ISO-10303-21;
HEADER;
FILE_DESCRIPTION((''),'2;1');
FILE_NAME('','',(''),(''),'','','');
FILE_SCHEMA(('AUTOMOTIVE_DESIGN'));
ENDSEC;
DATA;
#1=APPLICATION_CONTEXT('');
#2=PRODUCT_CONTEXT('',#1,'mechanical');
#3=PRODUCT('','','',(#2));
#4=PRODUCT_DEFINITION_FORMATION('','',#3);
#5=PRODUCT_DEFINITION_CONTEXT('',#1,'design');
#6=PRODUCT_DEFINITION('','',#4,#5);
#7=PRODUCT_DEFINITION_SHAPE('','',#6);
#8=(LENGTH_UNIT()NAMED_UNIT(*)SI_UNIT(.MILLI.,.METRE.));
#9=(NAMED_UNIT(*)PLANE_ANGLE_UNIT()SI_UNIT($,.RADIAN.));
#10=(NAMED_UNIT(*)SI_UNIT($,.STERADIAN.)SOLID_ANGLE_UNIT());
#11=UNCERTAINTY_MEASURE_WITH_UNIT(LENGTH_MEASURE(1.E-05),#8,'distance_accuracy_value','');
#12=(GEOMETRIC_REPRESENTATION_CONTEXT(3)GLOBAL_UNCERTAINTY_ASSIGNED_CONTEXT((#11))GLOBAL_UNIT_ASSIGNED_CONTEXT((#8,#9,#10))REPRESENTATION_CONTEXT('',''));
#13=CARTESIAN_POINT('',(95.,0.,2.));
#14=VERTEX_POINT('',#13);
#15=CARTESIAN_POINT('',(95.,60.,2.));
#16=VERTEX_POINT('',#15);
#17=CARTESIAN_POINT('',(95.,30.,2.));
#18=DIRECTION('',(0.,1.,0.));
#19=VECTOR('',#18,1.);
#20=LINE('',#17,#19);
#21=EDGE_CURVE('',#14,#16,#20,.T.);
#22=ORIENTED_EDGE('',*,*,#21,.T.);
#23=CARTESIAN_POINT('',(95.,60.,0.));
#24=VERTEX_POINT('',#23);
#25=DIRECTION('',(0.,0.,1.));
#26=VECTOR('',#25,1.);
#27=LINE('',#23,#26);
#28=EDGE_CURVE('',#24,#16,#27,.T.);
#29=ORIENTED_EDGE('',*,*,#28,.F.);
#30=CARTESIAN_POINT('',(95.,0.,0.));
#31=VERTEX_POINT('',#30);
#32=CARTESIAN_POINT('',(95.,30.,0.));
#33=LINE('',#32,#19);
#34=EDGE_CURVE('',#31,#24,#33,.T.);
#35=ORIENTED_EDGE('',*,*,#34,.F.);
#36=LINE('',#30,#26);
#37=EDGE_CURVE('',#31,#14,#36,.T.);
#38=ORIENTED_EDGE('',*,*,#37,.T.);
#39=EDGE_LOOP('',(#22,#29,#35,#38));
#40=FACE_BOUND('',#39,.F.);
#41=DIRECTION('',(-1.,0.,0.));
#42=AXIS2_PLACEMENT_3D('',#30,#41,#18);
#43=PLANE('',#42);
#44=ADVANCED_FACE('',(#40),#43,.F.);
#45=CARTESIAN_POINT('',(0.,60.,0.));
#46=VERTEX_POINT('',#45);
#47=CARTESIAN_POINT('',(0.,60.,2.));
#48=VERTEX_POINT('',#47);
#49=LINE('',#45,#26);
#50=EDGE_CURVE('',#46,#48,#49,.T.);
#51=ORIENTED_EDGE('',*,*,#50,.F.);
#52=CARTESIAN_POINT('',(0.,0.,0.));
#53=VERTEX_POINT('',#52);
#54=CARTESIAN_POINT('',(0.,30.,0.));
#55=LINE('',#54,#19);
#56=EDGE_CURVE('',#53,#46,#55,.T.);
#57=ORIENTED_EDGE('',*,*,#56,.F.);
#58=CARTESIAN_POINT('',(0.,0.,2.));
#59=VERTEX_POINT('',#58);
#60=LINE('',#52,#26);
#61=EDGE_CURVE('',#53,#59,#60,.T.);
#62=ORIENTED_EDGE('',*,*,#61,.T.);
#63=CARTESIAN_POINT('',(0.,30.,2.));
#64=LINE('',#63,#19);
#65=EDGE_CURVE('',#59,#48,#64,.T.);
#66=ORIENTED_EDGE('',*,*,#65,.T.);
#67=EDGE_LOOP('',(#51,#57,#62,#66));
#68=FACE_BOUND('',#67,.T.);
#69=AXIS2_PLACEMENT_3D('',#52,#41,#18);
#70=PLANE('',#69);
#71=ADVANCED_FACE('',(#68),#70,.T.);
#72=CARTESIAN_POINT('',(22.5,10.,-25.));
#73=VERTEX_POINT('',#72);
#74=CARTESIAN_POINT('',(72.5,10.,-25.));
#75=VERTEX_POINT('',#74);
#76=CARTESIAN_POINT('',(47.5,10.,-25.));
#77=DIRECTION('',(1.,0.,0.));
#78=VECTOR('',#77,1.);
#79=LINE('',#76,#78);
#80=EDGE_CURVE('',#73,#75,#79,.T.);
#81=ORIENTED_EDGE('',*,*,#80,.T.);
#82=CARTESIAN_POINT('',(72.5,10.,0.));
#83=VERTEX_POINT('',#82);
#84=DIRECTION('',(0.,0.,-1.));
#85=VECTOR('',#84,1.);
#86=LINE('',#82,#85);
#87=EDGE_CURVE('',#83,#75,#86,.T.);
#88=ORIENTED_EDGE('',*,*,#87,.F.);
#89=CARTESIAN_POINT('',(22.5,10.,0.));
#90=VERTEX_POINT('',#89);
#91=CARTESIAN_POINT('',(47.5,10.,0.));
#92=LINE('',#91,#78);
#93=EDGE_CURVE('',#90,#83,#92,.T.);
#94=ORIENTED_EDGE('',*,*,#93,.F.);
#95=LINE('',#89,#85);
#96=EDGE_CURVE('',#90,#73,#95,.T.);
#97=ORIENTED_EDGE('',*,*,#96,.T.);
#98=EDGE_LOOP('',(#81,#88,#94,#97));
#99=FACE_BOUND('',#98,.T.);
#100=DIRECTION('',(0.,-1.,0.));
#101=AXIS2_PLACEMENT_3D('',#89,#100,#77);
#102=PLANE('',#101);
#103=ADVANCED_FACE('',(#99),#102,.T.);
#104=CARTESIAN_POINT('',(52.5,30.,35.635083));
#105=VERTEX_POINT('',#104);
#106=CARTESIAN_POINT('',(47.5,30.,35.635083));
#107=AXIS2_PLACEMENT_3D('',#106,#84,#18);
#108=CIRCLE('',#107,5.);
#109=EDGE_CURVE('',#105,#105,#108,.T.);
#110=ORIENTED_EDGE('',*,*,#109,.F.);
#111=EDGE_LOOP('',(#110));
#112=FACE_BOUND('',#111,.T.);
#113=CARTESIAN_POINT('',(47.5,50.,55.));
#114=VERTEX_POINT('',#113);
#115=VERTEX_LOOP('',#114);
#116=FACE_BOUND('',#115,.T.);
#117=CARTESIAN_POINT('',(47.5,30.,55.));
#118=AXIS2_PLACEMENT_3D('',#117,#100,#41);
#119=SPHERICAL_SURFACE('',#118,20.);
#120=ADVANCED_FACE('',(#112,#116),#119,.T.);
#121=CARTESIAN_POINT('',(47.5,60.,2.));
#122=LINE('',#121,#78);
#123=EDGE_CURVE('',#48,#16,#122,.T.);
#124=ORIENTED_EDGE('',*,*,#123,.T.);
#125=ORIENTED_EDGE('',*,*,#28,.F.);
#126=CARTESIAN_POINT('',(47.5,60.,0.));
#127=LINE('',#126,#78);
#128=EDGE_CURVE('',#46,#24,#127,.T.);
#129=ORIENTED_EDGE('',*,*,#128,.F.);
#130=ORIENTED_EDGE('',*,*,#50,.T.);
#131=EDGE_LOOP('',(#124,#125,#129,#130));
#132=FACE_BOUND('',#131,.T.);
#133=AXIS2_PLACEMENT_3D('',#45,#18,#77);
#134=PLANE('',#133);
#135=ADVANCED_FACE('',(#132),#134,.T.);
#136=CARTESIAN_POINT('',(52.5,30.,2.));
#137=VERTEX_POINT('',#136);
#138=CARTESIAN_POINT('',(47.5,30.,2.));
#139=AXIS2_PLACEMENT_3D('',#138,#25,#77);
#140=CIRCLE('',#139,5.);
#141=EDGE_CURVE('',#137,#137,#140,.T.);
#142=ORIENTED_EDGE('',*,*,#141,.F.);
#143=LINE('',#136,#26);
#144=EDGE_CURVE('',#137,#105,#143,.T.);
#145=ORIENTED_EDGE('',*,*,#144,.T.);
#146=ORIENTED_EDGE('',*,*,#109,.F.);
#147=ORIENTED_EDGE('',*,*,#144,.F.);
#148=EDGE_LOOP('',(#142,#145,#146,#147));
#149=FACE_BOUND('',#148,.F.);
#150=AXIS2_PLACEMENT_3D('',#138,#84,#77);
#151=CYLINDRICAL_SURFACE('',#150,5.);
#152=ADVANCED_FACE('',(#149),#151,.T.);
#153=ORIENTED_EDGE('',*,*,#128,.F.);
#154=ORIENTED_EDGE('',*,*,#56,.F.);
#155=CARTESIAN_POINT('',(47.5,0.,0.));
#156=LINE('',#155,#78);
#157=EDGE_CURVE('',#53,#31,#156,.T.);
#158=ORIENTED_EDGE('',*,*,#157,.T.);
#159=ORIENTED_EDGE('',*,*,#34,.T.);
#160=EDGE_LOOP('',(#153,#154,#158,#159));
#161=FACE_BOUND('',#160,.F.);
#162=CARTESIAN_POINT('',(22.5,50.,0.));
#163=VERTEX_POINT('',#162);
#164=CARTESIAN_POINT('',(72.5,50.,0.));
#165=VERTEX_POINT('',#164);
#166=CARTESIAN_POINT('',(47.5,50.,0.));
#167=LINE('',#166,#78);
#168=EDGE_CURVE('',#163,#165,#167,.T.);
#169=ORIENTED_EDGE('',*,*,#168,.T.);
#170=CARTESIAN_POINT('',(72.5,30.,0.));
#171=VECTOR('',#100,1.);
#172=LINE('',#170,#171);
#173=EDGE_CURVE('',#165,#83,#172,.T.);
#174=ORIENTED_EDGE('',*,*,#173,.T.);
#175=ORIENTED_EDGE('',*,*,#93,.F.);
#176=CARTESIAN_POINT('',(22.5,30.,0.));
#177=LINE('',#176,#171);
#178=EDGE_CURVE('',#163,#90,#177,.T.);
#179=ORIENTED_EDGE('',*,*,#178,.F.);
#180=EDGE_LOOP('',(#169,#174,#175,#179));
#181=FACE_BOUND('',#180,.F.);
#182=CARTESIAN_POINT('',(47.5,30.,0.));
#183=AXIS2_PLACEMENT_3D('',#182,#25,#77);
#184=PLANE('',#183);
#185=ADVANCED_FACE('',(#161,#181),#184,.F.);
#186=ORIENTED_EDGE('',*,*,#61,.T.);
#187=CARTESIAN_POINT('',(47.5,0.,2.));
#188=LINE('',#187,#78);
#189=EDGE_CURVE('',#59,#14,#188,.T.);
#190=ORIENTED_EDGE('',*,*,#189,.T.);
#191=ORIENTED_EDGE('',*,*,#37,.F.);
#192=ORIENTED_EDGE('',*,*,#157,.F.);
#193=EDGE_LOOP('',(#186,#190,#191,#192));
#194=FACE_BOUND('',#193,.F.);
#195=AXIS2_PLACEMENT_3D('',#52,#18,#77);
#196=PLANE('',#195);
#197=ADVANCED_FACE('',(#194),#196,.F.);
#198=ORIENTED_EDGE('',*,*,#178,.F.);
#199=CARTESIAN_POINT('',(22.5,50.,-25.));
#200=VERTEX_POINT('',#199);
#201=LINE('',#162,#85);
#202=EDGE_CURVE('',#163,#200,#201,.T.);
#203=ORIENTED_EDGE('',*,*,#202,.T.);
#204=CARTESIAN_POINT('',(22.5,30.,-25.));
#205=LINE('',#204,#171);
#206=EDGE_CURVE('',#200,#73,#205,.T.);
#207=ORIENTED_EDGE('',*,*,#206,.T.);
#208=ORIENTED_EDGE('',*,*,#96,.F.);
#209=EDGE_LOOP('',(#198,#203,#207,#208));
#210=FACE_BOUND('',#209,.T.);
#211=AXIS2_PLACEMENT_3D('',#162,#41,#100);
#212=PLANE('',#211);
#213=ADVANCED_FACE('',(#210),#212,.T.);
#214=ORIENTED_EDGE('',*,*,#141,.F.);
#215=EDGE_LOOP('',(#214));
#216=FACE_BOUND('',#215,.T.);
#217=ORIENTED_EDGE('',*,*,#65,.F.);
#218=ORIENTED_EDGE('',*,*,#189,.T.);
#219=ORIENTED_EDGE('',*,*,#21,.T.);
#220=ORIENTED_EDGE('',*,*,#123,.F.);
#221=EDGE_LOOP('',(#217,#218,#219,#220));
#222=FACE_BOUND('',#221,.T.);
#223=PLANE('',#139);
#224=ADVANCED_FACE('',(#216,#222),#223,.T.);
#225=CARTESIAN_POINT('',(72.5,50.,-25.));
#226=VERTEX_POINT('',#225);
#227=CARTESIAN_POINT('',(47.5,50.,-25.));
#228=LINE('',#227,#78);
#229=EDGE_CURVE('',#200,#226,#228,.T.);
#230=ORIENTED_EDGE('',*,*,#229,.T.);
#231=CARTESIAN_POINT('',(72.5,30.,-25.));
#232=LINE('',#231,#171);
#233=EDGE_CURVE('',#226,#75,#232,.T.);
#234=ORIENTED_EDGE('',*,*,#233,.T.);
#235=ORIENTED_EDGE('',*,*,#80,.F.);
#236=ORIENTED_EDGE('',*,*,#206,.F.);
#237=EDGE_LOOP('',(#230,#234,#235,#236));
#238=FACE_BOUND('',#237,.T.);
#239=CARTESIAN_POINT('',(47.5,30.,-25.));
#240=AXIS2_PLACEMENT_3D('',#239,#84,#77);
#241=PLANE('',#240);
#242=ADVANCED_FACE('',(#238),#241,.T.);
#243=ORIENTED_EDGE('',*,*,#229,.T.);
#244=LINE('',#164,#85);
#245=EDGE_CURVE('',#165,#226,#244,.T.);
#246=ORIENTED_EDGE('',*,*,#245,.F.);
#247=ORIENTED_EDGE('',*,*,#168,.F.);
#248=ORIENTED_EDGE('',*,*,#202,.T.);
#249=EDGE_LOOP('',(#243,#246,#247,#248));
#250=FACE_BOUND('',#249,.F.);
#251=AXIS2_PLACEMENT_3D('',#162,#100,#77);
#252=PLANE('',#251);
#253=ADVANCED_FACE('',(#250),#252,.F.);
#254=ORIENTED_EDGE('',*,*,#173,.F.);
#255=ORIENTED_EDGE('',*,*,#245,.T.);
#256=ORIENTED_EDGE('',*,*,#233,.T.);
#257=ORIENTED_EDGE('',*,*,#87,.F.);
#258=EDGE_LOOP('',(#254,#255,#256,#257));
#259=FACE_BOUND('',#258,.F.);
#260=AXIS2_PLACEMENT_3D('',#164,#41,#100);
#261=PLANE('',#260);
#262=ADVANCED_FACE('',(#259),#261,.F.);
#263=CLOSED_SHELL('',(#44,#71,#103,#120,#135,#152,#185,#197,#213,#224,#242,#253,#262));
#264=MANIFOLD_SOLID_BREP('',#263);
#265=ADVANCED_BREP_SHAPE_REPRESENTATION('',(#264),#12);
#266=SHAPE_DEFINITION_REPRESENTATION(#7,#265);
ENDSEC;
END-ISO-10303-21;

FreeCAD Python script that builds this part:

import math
import FreeCAD as App
import Part
import Sketcher

V = App.Vector
Q = App.Units.Quantity

doc = App.newDocument("Part")
body = doc.addObject("PartDesign::Body", "Body")

sketch1 = body.newObject("Sketcher::SketchObject", "Sketch")
sketch1.AttachmentSupport = (doc.getObject("XY_Plane"), [""])
sketch1.MapMode = "FlatFace"
sketch1.addGeometry(Part.LineSegment(V(0, 60, 0), V(0, 0, 0)), False)
sketch1.addGeometry(Part.LineSegment(V(0, 0, 0), V(95, 0, 0)), False)
sketch1.addGeometry(Part.LineSegment(V(95, 0, 0), V(95, 60, 0)), False)
sketch1.addGeometry(Part.LineSegment(V(95, 60, 0), V(0, 60, 0)), False)
sketch1.addConstraint(Sketcher.Constraint("Coincident", 0, 2, 1, 1))
sketch1.addConstraint(Sketcher.Constraint("Coincident", 1, 2, 2, 1))
sketch1.addConstraint(Sketcher.Constraint("Coincident", 2, 2, 3, 1))
sketch1.addConstraint(Sketcher.Constraint("Coincident", 3, 2, 0, 1))
sketch1.addConstraint(Sketcher.Constraint("Vertical", 0))
sketch1.addConstraint(Sketcher.Constraint("Horizontal", 1))
sketch1.addConstraint(Sketcher.Constraint("Vertical", 2))
sketch1.addConstraint(Sketcher.Constraint("Horizontal", 3))
sketch1.addConstraint(Sketcher.Constraint("Coincident", 0, 2, -1, 1))
sketch1.addConstraint(Sketcher.Constraint("DistanceX", 1, 1, 1, 2, Q("95 mm")))
sketch1.addConstraint(Sketcher.Constraint("DistanceY", 0, 2, 0, 1, Q("60 mm")))
pad1 = body.newObject("PartDesign::Pad", "Pad")
pad1.Profile = sketch1
pad1.Length = 2

sketch2 = body.newObject("Sketcher::SketchObject", "Sketch001")
sketch2.AttachmentSupport = (doc.getObject("XY_Plane"), [""])
sketch2.MapMode = "FlatFace"
sketch2.addGeometry(Part.LineSegment(V(22, 10, 0), V(22, 50, 0)), False)
sketch2.addGeometry(Part.LineSegment(V(22, 50, 0), V(72, 50, 0)), False)
sketch2.addGeometry(Part.LineSegment(V(72, 50, 0), V(72, 10, 0)), False)
sketch2.addGeometry(Part.LineSegment(V(72, 10, 0), V(22, 10, 0)), False)
sketch2.addConstraint(Sketcher.Constraint("Coincident", 0, 2, 1, 1))
sketch2.addConstraint(Sketcher.Constraint("Coincident", 1, 2, 2, 1))
sketch2.addConstraint(Sketcher.Constraint("Coincident", 2, 2, 3, 1))
sketch2.addConstraint(Sketcher.Constraint("Coincident", 3, 2, 0, 1))
sketch2.addConstraint(Sketcher.Constraint("Vertical", 0))
sketch2.addConstraint(Sketcher.Constraint("Horizontal", 1))
sketch2.addConstraint(Sketcher.Constraint("Vertical", 2))
sketch2.addConstraint(Sketcher.Constraint("Horizontal", 3))
sketch2.addConstraint(Sketcher.Constraint("DistanceX", 1, 1, 1, 2, Q("50 mm")))
sketch2.addConstraint(Sketcher.Constraint("DistanceY", 0, 1, 0, 2, Q("40 mm")))
sketch2.addConstraint(Sketcher.Constraint("DistanceY", -1, 1, 0, 2, Q("50 mm")))
sketch2.addConstraint(Sketcher.Constraint("DistanceX", -1, 1, 0, 2, Q("22.5 mm")))
pad2 = body.newObject("PartDesign::Pad", "Pad001")
pad2.Profile = sketch2
pad2.Length = 25
pad2.Reversed = True

sketch3 = body.newObject("Sketcher::SketchObject", "Sketch002")
sketch3.AttachmentSupport = (doc.getObject("XY_Plane"), [""])
sketch3.MapMode = "FlatFace"
sketch3.AttachmentOffset = App.Placement(V(0, 0, 2), App.Rotation())
sketch3.addGeometry(Part.Circle(V(48, 30, 0), V(0, 0, 1), 5), False)
sketch3.addConstraint(Sketcher.Constraint("Diameter", 0, Q("10 mm")))
sketch3.addConstraint(Sketcher.Constraint("DistanceY", -1, 1, 0, 3, Q("30 mm")))
sketch3.addConstraint(Sketcher.Constraint("DistanceX", -1, 1, 0, 3, Q("47.5 mm")))
pad3 = body.newObject("PartDesign::Pad", "Pad002")
pad3.Profile = sketch3
pad3.Length = 53

sketch4 = body.newObject("Sketcher::SketchObject", "Sketch003")
sketch4.AttachmentSupport = (doc.getObject("XY_Plane"), [""])
sketch4.MapMode = "FlatFace"
sketch4.AttachmentOffset = App.Placement(V(0, 0, 55), App.Rotation())
sketch4.addGeometry(Part.ArcOfCircle(Part.Circle(V(48, 30, 0), V(0, 0, 1), 20), math.radians(90), math.radians(270)), False)
sketch4.addGeometry(Part.LineSegment(V(48, 10, 0), V(48, 50, 0)), False)
sketch4.addGeometry(Part.LineSegment(V(48, 50, 0), V(48, 10, 0)), True)
sketch4.addConstraint(Sketcher.Constraint("Coincident", 0, 1, 1, 2))
sketch4.addConstraint(Sketcher.Constraint("Coincident", 1, 1, 0, 2))
sketch4.addConstraint(Sketcher.Constraint("Vertical", 1))
sketch4.addConstraint(Sketcher.Constraint("Vertical", 2))
sketch4.addConstraint(Sketcher.Constraint("Coincident", 2, 1, 0, 1))
sketch4.addConstraint(Sketcher.Constraint("Equal", 1, 2))
sketch4.addConstraint(Sketcher.Constraint("Radius", 0, Q("20 mm")))
sketch4.addConstraint(Sketcher.Constraint("DistanceY", -1, 1, 0, 3, Q("30 mm")))
sketch4.addConstraint(Sketcher.Constraint("DistanceX", -1, 1, 0, 3, Q("47.5 mm")))
sketch4.addConstraint(Sketcher.Constraint("DistanceX", -1, 1, 0, 1, Q("47.5 mm")))
revolution = body.newObject("PartDesign::Revolution", "Revolution")
revolution.Profile = sketch4
revolution.ReferenceAxis = (sketch4, ["Axis0"])
revolution.Angle = 360

doc.recompute()
